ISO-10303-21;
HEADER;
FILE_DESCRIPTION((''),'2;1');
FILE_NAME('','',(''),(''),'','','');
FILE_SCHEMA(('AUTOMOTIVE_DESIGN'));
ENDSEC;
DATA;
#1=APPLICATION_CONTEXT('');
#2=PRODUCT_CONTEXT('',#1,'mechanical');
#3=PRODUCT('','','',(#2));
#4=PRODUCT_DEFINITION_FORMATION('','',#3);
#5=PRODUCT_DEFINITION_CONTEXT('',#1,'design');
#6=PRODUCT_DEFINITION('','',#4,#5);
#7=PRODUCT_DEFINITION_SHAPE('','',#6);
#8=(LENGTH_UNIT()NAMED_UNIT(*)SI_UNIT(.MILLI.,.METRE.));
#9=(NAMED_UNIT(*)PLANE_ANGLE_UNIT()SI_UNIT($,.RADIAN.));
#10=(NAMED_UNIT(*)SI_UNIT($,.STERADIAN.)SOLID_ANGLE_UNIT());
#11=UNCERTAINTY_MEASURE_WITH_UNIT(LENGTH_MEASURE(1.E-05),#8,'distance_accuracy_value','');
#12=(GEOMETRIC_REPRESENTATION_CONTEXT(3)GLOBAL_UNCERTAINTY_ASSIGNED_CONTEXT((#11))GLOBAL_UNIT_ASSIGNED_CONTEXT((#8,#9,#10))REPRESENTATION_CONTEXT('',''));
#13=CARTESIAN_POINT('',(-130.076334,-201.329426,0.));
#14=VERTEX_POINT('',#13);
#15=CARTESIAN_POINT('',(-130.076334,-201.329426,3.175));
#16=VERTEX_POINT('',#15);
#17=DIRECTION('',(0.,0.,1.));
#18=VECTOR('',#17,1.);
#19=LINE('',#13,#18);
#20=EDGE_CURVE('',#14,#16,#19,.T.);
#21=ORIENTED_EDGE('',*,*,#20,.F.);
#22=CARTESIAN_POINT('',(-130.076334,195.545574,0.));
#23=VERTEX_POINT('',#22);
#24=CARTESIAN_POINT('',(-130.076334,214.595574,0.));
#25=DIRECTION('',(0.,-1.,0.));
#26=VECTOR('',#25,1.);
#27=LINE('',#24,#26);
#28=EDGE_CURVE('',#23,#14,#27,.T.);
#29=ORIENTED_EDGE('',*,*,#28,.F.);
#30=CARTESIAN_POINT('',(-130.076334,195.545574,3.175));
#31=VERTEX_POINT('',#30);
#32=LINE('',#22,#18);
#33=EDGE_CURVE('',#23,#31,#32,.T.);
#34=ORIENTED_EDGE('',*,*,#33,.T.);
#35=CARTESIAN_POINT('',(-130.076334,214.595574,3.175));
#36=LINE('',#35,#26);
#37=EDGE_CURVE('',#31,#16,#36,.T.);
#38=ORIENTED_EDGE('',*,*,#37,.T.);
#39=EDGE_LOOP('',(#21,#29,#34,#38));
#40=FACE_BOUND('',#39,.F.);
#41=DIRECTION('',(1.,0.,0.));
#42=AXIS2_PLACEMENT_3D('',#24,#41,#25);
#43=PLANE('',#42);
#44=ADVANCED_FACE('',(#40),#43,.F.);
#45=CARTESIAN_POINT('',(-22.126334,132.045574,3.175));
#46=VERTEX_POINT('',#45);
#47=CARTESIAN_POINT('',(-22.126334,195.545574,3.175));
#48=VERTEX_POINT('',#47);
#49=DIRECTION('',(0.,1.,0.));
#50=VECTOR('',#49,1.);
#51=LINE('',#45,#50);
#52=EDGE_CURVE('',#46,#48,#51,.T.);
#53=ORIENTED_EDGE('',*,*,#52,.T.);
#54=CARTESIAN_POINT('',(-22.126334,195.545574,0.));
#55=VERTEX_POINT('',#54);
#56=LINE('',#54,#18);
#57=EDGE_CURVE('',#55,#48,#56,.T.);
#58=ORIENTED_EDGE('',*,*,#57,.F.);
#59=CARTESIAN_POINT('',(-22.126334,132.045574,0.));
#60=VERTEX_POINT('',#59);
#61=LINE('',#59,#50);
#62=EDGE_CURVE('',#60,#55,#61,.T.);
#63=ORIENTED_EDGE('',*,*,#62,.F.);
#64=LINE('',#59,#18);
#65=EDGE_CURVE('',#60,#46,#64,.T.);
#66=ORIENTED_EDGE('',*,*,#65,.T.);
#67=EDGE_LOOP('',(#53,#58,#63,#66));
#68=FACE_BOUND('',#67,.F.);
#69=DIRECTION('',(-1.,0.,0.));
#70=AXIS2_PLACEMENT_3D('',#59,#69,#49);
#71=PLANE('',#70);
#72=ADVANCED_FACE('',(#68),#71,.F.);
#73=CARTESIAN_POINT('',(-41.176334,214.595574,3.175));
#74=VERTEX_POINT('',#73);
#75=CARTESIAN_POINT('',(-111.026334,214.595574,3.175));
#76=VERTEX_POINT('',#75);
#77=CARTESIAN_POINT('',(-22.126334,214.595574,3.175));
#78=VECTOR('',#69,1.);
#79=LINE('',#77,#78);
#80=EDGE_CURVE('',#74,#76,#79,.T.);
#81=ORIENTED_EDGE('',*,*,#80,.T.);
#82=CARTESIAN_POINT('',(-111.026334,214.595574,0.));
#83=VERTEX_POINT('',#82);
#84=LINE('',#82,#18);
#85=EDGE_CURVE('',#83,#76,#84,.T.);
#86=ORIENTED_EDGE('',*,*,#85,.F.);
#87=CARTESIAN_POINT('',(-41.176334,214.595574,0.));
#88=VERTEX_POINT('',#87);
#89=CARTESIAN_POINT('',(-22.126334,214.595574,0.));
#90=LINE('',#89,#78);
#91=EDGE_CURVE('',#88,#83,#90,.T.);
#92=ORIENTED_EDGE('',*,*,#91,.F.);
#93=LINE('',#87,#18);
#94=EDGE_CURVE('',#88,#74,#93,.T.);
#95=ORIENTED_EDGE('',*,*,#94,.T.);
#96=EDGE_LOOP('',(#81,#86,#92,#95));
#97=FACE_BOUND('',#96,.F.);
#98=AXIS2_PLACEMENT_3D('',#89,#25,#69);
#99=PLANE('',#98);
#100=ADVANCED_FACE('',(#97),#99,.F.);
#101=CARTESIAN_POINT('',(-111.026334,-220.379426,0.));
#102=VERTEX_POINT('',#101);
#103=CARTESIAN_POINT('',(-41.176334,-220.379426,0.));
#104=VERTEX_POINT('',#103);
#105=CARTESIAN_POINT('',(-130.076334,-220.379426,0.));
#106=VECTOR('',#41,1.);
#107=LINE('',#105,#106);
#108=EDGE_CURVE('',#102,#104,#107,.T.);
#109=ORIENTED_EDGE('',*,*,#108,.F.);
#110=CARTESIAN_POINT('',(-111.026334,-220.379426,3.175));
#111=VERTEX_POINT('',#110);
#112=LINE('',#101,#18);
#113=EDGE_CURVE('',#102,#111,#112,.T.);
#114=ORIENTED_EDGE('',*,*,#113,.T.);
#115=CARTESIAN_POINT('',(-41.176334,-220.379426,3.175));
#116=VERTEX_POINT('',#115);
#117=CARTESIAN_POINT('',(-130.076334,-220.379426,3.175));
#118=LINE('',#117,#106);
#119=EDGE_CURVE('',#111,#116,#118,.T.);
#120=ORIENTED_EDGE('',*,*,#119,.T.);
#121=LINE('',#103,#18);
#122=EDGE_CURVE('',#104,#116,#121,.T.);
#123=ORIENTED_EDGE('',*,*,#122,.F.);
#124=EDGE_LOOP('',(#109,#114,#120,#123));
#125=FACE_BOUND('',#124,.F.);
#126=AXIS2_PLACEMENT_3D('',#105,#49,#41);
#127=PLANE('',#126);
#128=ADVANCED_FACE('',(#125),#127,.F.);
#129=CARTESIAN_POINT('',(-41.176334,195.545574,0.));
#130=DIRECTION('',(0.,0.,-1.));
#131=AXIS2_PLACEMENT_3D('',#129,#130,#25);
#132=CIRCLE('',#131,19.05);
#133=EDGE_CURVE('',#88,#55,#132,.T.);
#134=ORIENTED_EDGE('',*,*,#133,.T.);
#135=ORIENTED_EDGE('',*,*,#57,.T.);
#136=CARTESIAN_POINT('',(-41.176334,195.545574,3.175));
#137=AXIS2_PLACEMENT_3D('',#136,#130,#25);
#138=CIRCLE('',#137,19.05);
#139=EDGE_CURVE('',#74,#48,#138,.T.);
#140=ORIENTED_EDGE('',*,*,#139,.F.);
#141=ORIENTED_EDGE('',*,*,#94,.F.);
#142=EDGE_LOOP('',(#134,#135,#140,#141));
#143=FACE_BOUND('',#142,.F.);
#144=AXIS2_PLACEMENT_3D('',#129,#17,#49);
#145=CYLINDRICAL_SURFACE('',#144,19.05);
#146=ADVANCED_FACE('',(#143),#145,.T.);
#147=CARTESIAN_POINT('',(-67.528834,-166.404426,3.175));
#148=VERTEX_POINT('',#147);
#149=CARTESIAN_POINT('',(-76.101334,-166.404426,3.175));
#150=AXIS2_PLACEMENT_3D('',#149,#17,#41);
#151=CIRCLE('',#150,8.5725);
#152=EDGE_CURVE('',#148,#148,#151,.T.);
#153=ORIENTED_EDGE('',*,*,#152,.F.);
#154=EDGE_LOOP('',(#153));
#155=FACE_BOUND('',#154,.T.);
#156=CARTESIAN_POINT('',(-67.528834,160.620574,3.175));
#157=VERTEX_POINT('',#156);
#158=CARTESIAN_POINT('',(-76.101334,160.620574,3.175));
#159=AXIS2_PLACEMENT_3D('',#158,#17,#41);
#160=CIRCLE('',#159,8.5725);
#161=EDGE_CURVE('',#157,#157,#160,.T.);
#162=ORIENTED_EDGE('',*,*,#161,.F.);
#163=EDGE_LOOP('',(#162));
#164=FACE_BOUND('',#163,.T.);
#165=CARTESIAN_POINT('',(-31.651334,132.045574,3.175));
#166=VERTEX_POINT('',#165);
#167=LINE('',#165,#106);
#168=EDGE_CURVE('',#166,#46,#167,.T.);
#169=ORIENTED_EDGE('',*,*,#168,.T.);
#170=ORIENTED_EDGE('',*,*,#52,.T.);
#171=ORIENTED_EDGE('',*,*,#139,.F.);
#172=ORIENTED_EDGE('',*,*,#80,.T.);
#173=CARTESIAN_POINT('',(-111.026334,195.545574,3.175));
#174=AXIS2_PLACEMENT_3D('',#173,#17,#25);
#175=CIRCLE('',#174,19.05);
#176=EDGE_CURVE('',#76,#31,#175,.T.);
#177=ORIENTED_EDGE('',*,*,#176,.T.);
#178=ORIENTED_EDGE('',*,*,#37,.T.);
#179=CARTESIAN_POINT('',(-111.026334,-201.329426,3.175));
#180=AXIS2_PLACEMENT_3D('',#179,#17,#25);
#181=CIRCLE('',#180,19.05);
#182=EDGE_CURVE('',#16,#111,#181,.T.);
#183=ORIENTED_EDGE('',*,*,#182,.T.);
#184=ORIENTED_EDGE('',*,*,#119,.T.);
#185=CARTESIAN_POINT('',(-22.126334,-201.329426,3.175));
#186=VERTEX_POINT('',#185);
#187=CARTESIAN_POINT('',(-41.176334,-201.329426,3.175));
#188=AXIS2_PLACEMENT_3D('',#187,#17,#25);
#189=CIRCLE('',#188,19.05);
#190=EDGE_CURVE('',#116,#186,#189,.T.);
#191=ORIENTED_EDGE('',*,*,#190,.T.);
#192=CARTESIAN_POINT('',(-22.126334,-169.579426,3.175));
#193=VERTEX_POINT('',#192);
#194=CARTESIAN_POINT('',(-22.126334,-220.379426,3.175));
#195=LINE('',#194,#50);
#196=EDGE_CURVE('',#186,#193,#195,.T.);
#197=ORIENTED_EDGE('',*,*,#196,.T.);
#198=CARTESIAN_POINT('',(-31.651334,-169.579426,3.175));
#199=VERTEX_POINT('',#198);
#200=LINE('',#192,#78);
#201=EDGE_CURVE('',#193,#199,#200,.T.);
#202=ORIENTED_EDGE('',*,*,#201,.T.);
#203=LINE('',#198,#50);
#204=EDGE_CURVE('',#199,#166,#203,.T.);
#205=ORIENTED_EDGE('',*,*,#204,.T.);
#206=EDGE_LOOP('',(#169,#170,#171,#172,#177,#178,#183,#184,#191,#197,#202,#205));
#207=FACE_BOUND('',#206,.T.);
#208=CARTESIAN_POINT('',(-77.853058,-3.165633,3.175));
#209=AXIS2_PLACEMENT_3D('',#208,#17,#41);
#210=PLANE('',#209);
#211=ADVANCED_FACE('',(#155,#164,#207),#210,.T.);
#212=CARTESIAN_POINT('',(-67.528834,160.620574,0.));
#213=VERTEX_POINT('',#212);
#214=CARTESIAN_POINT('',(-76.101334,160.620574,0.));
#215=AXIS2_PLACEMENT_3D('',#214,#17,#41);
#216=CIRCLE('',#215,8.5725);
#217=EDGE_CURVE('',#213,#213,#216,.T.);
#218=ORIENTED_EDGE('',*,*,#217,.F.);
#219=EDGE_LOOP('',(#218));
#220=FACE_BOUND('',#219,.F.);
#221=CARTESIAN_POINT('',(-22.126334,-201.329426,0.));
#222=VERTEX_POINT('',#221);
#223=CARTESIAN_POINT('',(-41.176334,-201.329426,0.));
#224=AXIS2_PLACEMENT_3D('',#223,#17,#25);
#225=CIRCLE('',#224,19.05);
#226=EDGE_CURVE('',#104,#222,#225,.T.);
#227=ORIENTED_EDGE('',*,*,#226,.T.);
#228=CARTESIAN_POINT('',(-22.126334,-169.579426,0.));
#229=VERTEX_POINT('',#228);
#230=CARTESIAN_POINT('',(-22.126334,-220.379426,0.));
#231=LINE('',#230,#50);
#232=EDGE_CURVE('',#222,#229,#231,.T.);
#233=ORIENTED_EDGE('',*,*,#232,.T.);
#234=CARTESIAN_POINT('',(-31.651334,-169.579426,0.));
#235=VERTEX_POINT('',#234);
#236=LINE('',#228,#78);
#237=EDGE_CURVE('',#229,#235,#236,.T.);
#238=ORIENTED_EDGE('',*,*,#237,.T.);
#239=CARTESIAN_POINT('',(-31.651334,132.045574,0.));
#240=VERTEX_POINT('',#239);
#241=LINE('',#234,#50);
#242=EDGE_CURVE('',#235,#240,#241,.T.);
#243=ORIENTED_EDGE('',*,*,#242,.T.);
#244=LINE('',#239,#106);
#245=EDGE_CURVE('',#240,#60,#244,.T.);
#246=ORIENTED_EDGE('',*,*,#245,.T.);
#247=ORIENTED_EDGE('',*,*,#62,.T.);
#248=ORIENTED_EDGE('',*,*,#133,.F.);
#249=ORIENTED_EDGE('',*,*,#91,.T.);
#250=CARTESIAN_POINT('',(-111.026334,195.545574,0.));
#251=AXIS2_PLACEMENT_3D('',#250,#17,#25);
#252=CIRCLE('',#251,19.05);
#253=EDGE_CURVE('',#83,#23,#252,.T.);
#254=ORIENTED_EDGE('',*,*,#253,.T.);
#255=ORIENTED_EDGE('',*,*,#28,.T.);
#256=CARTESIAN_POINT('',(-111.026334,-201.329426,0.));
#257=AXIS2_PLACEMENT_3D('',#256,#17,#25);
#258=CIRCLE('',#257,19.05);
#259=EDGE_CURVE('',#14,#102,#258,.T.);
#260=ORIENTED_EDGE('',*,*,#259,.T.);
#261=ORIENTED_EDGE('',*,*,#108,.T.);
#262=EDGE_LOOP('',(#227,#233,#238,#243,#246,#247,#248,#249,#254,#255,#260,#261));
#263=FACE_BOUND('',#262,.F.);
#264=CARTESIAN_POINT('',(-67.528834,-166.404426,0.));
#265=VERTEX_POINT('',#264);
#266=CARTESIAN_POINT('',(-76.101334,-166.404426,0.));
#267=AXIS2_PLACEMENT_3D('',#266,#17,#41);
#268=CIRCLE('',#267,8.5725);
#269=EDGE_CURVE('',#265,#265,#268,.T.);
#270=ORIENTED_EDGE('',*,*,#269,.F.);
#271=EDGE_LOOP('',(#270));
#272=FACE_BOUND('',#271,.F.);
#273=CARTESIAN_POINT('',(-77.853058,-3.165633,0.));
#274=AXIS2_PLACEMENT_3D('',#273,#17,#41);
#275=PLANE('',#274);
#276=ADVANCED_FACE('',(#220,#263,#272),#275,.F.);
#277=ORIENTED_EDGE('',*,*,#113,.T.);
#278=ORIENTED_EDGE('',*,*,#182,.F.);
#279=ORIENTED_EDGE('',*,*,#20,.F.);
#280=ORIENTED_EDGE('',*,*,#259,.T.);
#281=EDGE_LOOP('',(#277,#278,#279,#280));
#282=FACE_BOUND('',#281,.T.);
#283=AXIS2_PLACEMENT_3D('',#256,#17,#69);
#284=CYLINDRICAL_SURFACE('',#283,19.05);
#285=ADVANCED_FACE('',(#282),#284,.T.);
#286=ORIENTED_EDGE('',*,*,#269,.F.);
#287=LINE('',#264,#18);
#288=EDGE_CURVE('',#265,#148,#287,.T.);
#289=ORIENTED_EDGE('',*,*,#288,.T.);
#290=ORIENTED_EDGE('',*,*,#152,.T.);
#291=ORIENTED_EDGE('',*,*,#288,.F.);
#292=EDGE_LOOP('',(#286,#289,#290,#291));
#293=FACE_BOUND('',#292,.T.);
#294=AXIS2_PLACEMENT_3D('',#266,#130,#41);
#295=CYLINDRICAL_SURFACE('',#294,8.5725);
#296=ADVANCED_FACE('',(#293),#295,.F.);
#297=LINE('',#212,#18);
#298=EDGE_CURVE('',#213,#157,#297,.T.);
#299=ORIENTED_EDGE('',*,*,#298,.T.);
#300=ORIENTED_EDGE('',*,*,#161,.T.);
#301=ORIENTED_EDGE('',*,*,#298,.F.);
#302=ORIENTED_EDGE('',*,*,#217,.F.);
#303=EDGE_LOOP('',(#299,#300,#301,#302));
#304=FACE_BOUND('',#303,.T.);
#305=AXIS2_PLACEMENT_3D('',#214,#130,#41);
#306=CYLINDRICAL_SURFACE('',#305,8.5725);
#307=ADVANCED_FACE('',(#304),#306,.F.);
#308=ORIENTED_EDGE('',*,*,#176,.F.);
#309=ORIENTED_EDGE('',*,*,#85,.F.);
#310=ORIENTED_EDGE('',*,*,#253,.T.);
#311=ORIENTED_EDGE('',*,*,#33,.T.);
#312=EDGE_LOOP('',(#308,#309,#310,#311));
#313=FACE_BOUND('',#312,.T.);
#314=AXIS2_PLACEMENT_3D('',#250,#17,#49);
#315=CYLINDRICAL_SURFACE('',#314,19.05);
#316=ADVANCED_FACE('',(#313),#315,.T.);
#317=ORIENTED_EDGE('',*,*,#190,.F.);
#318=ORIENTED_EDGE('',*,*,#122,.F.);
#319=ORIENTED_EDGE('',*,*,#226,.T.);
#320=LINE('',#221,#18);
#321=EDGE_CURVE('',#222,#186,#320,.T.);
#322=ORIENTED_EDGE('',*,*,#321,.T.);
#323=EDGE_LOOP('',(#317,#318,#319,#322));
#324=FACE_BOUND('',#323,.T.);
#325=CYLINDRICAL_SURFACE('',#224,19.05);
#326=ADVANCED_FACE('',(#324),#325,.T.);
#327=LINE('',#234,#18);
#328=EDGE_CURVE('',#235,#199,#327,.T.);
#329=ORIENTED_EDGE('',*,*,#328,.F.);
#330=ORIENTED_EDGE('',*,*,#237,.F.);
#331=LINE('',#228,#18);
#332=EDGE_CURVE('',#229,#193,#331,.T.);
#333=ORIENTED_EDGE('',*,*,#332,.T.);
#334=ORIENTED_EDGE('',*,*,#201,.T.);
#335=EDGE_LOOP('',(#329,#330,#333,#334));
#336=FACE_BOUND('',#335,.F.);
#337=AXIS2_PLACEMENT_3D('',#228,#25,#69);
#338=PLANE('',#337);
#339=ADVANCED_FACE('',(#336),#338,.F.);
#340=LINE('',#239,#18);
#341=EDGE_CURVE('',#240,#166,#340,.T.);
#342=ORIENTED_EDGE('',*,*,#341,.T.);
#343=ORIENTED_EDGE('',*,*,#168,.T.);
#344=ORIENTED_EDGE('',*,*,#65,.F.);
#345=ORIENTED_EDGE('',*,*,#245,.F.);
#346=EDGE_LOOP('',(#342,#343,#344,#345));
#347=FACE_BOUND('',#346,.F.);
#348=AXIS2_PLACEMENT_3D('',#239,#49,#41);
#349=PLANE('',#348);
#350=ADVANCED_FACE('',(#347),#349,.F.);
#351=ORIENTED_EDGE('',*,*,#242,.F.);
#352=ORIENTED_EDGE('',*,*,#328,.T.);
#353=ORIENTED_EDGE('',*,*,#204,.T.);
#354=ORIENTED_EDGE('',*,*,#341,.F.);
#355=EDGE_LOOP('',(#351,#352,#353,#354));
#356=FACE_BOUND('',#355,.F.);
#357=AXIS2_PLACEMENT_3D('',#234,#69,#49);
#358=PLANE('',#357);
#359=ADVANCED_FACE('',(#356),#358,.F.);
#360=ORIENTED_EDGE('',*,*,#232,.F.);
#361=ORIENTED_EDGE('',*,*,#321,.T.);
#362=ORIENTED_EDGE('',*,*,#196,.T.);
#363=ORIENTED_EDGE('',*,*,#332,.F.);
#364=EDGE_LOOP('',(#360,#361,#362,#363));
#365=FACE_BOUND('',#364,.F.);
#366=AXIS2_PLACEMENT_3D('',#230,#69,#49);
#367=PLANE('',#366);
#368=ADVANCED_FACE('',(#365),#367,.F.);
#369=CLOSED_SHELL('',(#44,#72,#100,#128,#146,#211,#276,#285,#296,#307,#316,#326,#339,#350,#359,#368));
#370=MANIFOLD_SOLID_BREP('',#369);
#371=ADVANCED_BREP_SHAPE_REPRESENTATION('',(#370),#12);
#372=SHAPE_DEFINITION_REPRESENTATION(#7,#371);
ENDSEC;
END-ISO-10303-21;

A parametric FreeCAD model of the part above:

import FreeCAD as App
import Part
import Sketcher
from FreeCAD import Vector
Q = App.Units.Quantity


def edges_at(feature, points):
    """Names of the edges that pass closest to the given points."""
    edges = feature.Shape.Edges
    near = lambda p: min(range(len(edges)), key=lambda i: edges[i].distToShape(Part.Vertex(*p))[0])
    return sorted({f"Edge{near(p) + 1}" for p in points})

doc = App.newDocument("Part")
body = doc.addObject("PartDesign::Body", "Body")

# Sketch on XY plane
sketch1 = body.newObject("Sketcher::SketchObject", "Sketch")
sketch1.AttachmentSupport = (doc.getObject("XY_Plane"), [""])
sketch1.MapMode = "FlatFace"
sketch1.addGeometry(Part.LineSegment(Vector(-22.126334, 214.595574, 0), Vector(-130.076334, 214.595574, 0)), False)
sketch1.addGeometry(Part.LineSegment(Vector(-130.076334, 214.595574, 0), Vector(-130.076334, -220.379426, 0)), False)
sketch1.addGeometry(Part.LineSegment(Vector(-130.076334, -220.379426, 0), Vector(-22.126334, -220.379426, 0)), False)
sketch1.addGeometry(Part.LineSegment(Vector(-22.126334, -220.379426, 0), Vector(-22.126334, -169.579426, 0)), False)
sketch1.addGeometry(Part.LineSegment(Vector(-22.126334, -169.579426, 0), Vector(-31.651334, -169.579426, 0)), False)
sketch1.addGeometry(Part.LineSegment(Vector(-31.651334, -169.579426, 0), Vector(-31.651334, 132.045574, 0)), False)
sketch1.addGeometry(Part.LineSegment(Vector(-31.651334, 132.045574, 0), Vector(-22.126334, 132.045574, 0)), False)
sketch1.addGeometry(Part.LineSegment(Vector(-22.126334, 132.045574, 0), Vector(-22.126334, 214.595574, 0)), False)
sketch1.addGeometry(Part.Circle(Vector(-76.101334, -166.404426, 0), Vector(0, 0, 1), 8.5725), False)
sketch1.addGeometry(Part.Circle(Vector(-76.101334, 160.620574, 0), Vector(0, 0, 1), 8.5725), False)
sketch1.addConstraint(Sketcher.Constraint("Coincident", 0, 2, 1, 1))
sketch1.addConstraint(Sketcher.Constraint("Coincident", 1, 2, 2, 1))
sketch1.addConstraint(Sketcher.Constraint("Coincident", 2, 2, 3, 1))
sketch1.addConstraint(Sketcher.Constraint("Coincident", 3, 2, 4, 1))
sketch1.addConstraint(Sketcher.Constraint("Coincident", 4, 2, 5, 1))
sketch1.addConstraint(Sketcher.Constraint("Coincident", 5, 2, 6, 1))
sketch1.addConstraint(Sketcher.Constraint("Coincident", 6, 2, 7, 1))
sketch1.addConstraint(Sketcher.Constraint("Coincident", 7, 2, 0, 1))
sketch1.addConstraint(Sketcher.Constraint("Horizontal", 0))
sketch1.addConstraint(Sketcher.Constraint("Vertical", 1))
sketch1.addConstraint(Sketcher.Constraint("Horizontal", 2))
sketch1.addConstraint(Sketcher.Constraint("Vertical", 3))
sketch1.addConstraint(Sketcher.Constraint("Horizontal", 4))
sketch1.addConstraint(Sketcher.Constraint("Vertical", 5))
sketch1.addConstraint(Sketcher.Constraint("Horizontal", 6))
sketch1.addConstraint(Sketcher.Constraint("Vertical", 7))
sketch1.addConstraint(Sketcher.Constraint("Equal", 8, 9))
sketch1.addConstraint(Sketcher.Constraint("Vertical", 8, 3, 9, 3))
sketch1.addConstraint(Sketcher.Constraint("Vertical", 3, 2, 6, 2))
sketch1.addConstraint(Sketcher.Constraint("DistanceY", 3, 1, 3, 2, Q("2 in")))
sketch1.addConstraint(Sketcher.Constraint("Diameter", 8, Q("0.675 in")))
sketch1.addConstraint(Sketcher.Constraint("DistanceY", 8, 3, 0, 2, Q("15 in")))
sketch1.addConstraint(Sketcher.Constraint("DistanceY", 1, 2, 9, 3, Q("15 in")))
sketch1.addConstraint(Sketcher.Constraint("DistanceX", 0, 2, 0, 1, Q("4.25 in")))
sketch1.addConstraint(Sketcher.Constraint("DistanceY", 7, 1, 7, 2, Q("3.25 in")))
sketch1.addConstraint(Sketcher.Constraint("DistanceX", 4, 2, 4, 1, Q("0.375 in")))
sketch1.addConstraint(Sketcher.Constraint("DistanceY", 1, 2, 1, 1, Q("17.125 in")))
sketch1.addConstraint(Sketcher.Constraint("DistanceX", 8, 3, 4, 2, Q("1.75 in")))
sketch1.addConstraint(Sketcher.Constraint("DistanceX", 8, 3, -1, 1, 76.101334))
sketch1.addConstraint(Sketcher.Constraint("DistanceY", 8, 3, -1, 1, 166.404426))
pad1 = body.newObject("PartDesign::Pad", "Pad")
pad1.Profile = sketch1
pad1.Length = Q("0.125 in")
doc.recompute()

fillet = body.newObject("PartDesign::Fillet", "Fillet")
fillet.Base = (pad1, edges_at(pad1, [
    (-130.076, -220.379, 1.587),
    (-22.126, -220.379, 1.587),
    (-130.076, 214.596, 1.587),
    (-22.126, 214.596, 1.587),
]))
fillet.Radius = Q("0.75 in")

doc.recompute()
